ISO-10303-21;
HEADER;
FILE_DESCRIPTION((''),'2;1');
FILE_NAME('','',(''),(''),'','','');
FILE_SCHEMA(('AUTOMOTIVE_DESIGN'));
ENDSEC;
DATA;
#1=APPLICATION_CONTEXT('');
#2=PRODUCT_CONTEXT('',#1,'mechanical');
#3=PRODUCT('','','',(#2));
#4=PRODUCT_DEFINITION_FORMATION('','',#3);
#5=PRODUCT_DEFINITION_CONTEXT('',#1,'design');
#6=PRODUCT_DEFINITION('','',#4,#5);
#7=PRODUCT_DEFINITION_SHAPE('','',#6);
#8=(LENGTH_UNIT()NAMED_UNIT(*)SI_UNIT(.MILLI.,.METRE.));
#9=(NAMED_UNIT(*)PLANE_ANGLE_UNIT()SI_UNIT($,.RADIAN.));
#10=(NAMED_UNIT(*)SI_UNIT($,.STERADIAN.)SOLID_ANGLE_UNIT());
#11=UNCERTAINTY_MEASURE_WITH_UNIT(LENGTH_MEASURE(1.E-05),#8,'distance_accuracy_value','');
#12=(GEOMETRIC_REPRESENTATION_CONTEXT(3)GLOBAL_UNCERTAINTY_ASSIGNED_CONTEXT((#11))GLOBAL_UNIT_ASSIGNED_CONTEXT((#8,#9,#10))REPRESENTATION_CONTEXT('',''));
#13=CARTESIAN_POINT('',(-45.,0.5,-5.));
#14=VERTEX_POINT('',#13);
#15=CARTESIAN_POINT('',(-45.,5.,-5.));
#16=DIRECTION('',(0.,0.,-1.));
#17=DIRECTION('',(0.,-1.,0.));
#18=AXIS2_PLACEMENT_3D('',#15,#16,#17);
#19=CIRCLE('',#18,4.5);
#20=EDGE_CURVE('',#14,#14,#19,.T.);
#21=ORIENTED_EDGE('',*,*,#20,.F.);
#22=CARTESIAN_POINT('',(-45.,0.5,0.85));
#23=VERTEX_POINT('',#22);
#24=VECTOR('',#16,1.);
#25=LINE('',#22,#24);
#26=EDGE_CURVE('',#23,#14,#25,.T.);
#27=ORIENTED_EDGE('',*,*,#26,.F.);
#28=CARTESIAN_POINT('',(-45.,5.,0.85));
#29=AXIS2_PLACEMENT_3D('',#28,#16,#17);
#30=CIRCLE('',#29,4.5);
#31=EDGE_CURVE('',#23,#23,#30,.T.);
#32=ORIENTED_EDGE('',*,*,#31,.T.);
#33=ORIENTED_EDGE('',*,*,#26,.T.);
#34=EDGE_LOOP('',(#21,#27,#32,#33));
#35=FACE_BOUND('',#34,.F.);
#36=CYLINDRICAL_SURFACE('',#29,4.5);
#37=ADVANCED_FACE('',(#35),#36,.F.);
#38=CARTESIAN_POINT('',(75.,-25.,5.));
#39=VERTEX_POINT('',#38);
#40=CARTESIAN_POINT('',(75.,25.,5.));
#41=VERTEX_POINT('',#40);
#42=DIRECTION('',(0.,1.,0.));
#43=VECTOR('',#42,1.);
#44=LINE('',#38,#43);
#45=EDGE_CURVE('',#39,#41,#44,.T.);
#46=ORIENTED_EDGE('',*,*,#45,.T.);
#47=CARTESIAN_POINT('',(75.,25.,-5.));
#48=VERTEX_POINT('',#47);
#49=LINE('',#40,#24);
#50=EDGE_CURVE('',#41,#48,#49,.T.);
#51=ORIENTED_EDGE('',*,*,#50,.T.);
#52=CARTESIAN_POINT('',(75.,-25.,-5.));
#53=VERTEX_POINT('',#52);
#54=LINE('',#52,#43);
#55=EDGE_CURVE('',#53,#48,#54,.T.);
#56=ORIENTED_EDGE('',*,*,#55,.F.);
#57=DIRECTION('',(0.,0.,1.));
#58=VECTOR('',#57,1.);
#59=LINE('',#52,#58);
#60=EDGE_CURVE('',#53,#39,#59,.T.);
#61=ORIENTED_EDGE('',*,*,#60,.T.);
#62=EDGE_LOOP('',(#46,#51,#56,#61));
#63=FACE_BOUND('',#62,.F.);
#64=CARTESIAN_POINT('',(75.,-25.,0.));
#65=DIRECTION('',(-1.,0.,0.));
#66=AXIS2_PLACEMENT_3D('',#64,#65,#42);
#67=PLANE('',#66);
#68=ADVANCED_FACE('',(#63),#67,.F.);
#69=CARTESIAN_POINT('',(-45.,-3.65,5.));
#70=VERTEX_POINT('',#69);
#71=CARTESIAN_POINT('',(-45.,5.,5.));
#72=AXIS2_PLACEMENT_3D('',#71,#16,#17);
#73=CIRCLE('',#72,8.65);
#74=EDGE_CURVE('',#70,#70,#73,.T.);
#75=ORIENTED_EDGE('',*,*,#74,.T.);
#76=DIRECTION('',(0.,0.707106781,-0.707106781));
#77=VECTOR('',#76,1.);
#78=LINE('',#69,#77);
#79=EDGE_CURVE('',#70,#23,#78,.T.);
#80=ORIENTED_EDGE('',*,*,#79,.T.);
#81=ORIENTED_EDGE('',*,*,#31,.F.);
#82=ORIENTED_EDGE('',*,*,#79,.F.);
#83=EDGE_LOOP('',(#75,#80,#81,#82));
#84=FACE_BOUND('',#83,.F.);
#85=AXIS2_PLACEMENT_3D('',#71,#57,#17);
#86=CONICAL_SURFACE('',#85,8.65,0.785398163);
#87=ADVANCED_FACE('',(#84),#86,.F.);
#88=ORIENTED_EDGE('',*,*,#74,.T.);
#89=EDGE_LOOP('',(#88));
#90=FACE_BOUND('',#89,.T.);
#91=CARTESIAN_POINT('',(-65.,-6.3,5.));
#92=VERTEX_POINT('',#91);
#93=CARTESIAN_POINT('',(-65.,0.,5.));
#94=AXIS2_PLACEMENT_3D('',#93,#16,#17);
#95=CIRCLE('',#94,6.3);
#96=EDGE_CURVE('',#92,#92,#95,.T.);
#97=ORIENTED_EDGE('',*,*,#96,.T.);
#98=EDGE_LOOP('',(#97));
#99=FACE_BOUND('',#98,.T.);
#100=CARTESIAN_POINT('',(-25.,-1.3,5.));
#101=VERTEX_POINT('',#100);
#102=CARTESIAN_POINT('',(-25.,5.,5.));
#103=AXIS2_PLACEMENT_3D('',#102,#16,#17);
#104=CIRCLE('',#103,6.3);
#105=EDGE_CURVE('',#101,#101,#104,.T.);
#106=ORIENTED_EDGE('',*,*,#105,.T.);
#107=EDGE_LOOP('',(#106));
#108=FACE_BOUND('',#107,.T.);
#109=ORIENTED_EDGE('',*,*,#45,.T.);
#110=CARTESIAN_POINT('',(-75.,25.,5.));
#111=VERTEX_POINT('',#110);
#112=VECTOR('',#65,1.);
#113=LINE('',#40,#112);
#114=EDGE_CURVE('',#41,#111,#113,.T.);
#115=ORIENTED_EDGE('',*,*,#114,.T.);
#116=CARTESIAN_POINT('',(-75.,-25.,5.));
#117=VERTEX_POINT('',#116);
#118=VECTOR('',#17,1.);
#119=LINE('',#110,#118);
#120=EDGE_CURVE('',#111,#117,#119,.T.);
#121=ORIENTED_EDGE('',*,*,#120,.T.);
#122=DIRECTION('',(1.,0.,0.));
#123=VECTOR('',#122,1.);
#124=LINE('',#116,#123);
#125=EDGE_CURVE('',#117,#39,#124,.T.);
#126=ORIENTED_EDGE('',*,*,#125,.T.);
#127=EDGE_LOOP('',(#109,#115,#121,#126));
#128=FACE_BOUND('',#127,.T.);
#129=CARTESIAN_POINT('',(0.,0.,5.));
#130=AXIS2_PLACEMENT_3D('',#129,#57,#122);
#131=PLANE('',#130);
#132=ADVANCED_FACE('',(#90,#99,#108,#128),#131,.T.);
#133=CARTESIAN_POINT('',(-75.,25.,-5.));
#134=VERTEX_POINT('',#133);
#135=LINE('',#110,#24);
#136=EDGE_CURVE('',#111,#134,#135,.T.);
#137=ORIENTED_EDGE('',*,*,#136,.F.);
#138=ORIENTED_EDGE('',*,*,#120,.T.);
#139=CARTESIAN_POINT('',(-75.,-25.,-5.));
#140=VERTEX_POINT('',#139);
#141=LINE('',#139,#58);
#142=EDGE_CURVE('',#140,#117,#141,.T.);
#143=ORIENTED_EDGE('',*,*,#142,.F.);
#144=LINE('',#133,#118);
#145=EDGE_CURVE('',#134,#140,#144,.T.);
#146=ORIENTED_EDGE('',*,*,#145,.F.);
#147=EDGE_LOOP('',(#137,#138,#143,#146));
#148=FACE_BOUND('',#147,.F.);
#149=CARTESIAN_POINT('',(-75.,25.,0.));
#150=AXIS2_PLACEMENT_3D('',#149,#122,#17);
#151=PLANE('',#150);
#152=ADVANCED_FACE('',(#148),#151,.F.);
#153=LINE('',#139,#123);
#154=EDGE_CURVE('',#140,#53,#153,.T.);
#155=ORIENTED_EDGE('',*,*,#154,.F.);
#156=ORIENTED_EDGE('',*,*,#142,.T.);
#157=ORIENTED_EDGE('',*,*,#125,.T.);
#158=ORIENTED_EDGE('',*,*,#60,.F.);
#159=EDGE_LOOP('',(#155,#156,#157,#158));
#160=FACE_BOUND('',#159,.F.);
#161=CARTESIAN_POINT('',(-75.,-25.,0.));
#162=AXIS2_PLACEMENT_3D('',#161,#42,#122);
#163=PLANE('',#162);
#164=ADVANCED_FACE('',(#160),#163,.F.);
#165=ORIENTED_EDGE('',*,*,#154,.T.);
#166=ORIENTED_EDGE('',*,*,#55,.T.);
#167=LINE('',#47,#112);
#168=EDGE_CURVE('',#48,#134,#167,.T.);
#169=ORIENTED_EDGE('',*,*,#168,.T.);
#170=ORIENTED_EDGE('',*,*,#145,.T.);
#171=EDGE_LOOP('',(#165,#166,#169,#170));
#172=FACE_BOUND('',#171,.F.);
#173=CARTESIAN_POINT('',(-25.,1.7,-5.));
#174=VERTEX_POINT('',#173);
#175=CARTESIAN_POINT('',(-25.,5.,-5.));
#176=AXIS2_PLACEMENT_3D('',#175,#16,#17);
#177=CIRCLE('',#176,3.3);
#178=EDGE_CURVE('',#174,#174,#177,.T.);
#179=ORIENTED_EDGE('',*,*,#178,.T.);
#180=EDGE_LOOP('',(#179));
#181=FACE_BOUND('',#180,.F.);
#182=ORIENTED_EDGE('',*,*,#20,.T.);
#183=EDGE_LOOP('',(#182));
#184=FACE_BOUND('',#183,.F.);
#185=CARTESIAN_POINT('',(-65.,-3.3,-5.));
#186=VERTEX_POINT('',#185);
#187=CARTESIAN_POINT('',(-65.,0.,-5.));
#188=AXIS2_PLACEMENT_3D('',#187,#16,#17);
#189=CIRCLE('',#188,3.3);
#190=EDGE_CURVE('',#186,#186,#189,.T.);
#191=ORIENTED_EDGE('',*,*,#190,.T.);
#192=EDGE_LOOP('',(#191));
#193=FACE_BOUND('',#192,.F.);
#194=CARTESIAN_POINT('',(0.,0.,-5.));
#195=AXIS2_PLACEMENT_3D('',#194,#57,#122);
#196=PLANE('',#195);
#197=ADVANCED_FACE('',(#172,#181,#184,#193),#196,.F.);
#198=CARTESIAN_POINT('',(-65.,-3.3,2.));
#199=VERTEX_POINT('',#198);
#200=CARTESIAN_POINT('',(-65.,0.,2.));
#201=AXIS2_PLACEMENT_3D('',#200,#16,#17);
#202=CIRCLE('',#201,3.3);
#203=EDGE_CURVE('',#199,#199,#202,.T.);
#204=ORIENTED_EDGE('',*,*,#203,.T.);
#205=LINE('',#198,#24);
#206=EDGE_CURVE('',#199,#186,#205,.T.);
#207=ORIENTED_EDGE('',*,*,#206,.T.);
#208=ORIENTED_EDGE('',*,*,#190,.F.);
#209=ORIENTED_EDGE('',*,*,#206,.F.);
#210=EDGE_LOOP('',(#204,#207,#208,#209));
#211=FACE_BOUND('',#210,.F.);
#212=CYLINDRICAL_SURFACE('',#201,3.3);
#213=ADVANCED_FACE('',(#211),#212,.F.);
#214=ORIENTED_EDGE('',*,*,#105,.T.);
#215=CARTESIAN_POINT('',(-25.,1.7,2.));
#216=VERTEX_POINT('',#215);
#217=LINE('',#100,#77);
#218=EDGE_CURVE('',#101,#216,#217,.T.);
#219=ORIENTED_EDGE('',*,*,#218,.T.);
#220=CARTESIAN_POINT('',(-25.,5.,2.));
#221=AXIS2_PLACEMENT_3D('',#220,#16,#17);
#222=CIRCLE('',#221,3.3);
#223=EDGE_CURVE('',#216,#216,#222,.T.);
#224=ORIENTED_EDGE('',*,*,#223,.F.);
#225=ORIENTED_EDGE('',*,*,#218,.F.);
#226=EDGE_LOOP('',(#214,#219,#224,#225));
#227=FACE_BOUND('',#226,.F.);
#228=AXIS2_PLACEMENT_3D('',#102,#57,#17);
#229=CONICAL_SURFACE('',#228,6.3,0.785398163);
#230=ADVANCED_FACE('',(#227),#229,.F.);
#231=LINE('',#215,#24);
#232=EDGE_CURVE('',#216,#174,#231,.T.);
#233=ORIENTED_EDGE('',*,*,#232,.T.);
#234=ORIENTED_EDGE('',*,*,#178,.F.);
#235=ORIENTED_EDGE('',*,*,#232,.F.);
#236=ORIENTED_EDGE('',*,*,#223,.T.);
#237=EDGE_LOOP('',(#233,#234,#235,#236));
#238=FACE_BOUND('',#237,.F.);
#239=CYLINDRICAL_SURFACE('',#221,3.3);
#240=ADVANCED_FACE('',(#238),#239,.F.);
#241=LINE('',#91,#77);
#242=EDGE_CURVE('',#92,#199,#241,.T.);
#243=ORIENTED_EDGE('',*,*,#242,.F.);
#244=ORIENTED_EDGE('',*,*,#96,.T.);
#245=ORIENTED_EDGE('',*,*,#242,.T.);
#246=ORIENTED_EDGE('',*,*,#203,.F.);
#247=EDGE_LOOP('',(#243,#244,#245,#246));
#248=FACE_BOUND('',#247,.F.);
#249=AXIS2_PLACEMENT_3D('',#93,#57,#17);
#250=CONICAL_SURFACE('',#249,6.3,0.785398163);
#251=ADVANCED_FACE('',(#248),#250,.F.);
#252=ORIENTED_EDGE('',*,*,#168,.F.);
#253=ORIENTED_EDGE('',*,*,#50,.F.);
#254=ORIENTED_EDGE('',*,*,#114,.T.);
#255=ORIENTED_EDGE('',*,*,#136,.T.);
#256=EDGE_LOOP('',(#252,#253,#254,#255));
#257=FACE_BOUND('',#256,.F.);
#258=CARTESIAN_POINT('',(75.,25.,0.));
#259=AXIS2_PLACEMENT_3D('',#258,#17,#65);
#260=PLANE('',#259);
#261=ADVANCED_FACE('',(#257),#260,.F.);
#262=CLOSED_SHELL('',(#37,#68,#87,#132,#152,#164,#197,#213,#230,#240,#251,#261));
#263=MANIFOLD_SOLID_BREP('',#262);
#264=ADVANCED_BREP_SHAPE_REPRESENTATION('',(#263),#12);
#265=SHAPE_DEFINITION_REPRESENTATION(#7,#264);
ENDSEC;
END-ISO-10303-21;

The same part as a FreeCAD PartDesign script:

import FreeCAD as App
import Part
import Sketcher
Q = App.Units.Quantity


def add_polygon(sketch, points):
    """Adds a closed chain of lines whose ends are joined by coincident constraints."""
    first, n = sketch.GeometryCount, len(points)
    for a, b in zip(points, points[1:] + points[:1]):
        sketch.addGeometry(Part.LineSegment(App.Vector(*a, 0), App.Vector(*b, 0)), False)
    for i in range(n):
        sketch.addConstraint(Sketcher.Constraint("Coincident", first + i, 2, first + (i + 1) % n, 1))

doc = App.newDocument("Part")
body = doc.addObject("PartDesign::Body", "Body")

# Sketch on XY plane
sketch1 = body.newObject("Sketcher::SketchObject", "Sketch")
sketch1.AttachmentSupport = (doc.getObject("XY_Plane"), [""])
sketch1.MapMode = "FlatFace"
add_polygon(sketch1, [(-75, 25), (-75, -25), (75, -25), (75, 25)])  # lines 0-3
sketch1.addConstraint([
    Sketcher.Constraint("Vertical", 0),
    Sketcher.Constraint("Horizontal", 1),
    Sketcher.Constraint("Vertical", 2),
    Sketcher.Constraint("Horizontal", 3),
    Sketcher.Constraint("Symmetric", 0, 2, 2, 2, -1, 1),
    Sketcher.Constraint("DistanceX", 1, 1, 1, 2, Q("150 mm")),
    Sketcher.Constraint("DistanceY", 0, 2, 0, 1, Q("50 mm")),
])
pad1 = body.newObject("PartDesign::Pad", "Pad")
pad1.Profile = sketch1
pad1.Length = 10
pad1.Midplane = True

# Sketch on XY plane
sketch2 = body.newObject("Sketcher::SketchObject", "Sketch001")
sketch2.AttachmentSupport = (doc.getObject("XY_Plane"), [""])
sketch2.MapMode = "FlatFace"
sketch2.AttachmentOffset = App.Placement(App.Vector(0, 0, 5), App.Rotation())
sketch2.addGeometry(Part.Circle(App.Vector(-65, 0, 0), App.Vector(0, 0, 1), 3.3), False)
sketch2.addConstraint([
    Sketcher.Constraint("PointOnObject", 0, 3, -1),
    Sketcher.Constraint("Diameter", 0, Q("6.6 mm")),
    Sketcher.Constraint("DistanceX", 0, 3, -1, 1, Q("65 mm")),
])
doc.recompute()
hole = body.newObject("PartDesign::Hole", "Hole")
hole.Profile = sketch2
hole.ThreadType = "None"
hole.Diameter = 6.6
hole.DepthType = "Dimension"
hole.Depth = 14.2
hole.DrillPoint = "Angled"
hole.DrillPointAngle = 118
hole.HoleCutType = "Countersink"
hole.HoleCutDiameter = 12.6
hole.HoleCutCountersinkAngle = 90

# Sketch on XY plane
sketch3 = body.newObject("Sketcher::SketchObject", "Sketch002")
sketch3.AttachmentSupport = (doc.getObject("XY_Plane"), [""])
sketch3.MapMode = "FlatFace"
sketch3.AttachmentOffset = App.Placement(App.Vector(0, 0, 5), App.Rotation())
sketch3.addGeometry(Part.Circle(App.Vector(-45, 5, 0), App.Vector(0, 0, 1), 4.5), False)
sketch3.addConstraint([
    Sketcher.Constraint("Diameter", 0, Q("9 mm")),
    Sketcher.Constraint("DistanceX", 0, 3, -1, 1, Q("45 mm")),
    Sketcher.Constraint("DistanceY", -1, 1, 0, 3, Q("5 mm")),
])
doc.recompute()
hole2 = body.newObject("PartDesign::Hole", "Hole001")
hole2.Profile = sketch3
hole2.ThreadType = "None"
hole2.Diameter = 9
hole2.DepthType = "Dimension"
hole2.Depth = 14.2
hole2.DrillPoint = "Angled"
hole2.DrillPointAngle = 118
hole2.HoleCutType = "Countersink"
hole2.HoleCutDiameter = 17.3
hole2.HoleCutCountersinkAngle = 90

# Sketch on XY plane
sketch4 = body.newObject("Sketcher::SketchObject", "Sketch003")
sketch4.AttachmentSupport = (doc.getObject("XY_Plane"), [""])
sketch4.MapMode = "FlatFace"
sketch4.AttachmentOffset = App.Placement(App.Vector(0, 0, 5), App.Rotation())
sketch4.addGeometry(Part.Circle(App.Vector(-25, 5, 0), App.Vector(0, 0, 1), 3.3), False)
sketch4.addConstraint([
    Sketcher.Constraint("Diameter", 0, Q("6.6 mm")),
    Sketcher.Constraint("DistanceX", 0, 3, -1, 1, Q("25 mm")),
    Sketcher.Constraint("DistanceY", -1, 1, 0, 3, Q("5 mm")),
])
doc.recompute()
hole3 = body.newObject("PartDesign::Hole", "Hole002")
hole3.Profile = sketch4
hole3.ThreadType = "None"
hole3.Diameter = 6.6
hole3.DepthType = "Dimension"
hole3.Depth = 14.2
hole3.DrillPoint = "Angled"
hole3.DrillPointAngle = 118
hole3.HoleCutType = "Countersink"
hole3.HoleCutDiameter = 12.6
hole3.HoleCutCountersinkAngle = 90

doc.recompute()
